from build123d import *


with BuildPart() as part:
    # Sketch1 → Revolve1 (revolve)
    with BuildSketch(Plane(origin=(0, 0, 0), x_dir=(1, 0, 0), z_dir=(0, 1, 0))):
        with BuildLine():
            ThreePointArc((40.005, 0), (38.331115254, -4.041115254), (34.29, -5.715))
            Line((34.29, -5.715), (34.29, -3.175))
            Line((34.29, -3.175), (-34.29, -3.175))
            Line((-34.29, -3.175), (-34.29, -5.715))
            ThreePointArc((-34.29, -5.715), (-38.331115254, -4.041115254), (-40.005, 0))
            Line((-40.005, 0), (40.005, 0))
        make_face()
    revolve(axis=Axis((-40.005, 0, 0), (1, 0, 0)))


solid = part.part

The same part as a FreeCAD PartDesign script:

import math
import FreeCAD as App
import Part
import Sketcher
Q = App.Units.Quantity

doc = App.newDocument("Part")
body = doc.addObject("PartDesign::Body", "Body")

# Sketch on XZ plane
sketch1 = body.newObject("Sketcher::SketchObject", "Sketch")
sketch1.AttachmentSupport = (doc.getObject("XZ_Plane"), [""])
sketch1.MapMode = "FlatFace"
sketch1.addGeometry(Part.ArcOfCircle(Part.Circle(App.Vector(34.3, 0, 0), App.Vector(0, 0, 1), 5.7), math.radians(0), math.radians(90)), False)
sketch1.addGeometry(Part.LineSegment(App.Vector(40, 0, 0), App.Vector(-40, 0, 0)), False)
sketch1.addGeometry(Part.ArcOfCircle(Part.Circle(App.Vector(-34.3, 0, 0), App.Vector(0, 0, 1), 5.7), math.radians(90), math.radians(180)), False)
sketch1.addGeometry(Part.LineSegment(App.Vector(-34.3, 5.7, 0), App.Vector(-34.3, 3.2, 0)), False)
sketch1.addGeometry(Part.LineSegment(App.Vector(-34.3, 3.2, 0), App.Vector(34.3, 3.2, 0)), False)
sketch1.addGeometry(Part.LineSegment(App.Vector(34.3, 3.2, 0), App.Vector(34.3, 5.7, 0)), False)
sketch1.addConstraint(Sketcher.Constraint("Coincident", 0, 1, 1, 1))
sketch1.addConstraint(Sketcher.Constraint("Coincident", 1, 2, 2, 2))
sketch1.addConstraint(Sketcher.Constraint("Coincident", 2, 1, 3, 1))
sketch1.addConstraint(Sketcher.Constraint("Coincident", 3, 2, 4, 1))
sketch1.addConstraint(Sketcher.Constraint("Coincident", 4, 2, 5, 1))
sketch1.addConstraint(Sketcher.Constraint("Coincident", 5, 2, 0, 2))
sketch1.addConstraint(Sketcher.Constraint("Horizontal", 1))
sketch1.addConstraint(Sketcher.Constraint("Vertical", 3))
sketch1.addConstraint(Sketcher.Constraint("Horizontal", 4))
sketch1.addConstraint(Sketcher.Constraint("Vertical", 5))
sketch1.addConstraint(Sketcher.Constraint("Equal", 0, 2))
sketch1.addConstraint(Sketcher.Constraint("Symmetric", 0, 3, 2, 3, -1, 1))
sketch1.addConstraint(Sketcher.Constraint("Symmetric", 2, 1, 5, 2, -2))
sketch1.addConstraint(Sketcher.Constraint("PointOnObject", 0, 1, -1))
sketch1.addConstraint(Sketcher.Constraint("Vertical", 0, 3, 4, 2))
sketch1.addConstraint(Sketcher.Constraint("DistanceX", 4, 1, 4, 2, Q("2.7 in")))
sketch1.addConstraint(Sketcher.Constraint("DistanceY", 3, 2, 3, 1, Q("0.1 in")))
sketch1.addConstraint(Sketcher.Constraint("Radius", 0, Q("0.225 in")))
revolution = body.newObject("PartDesign::Revolution", "Revolution")
revolution.Profile = sketch1
revolution.ReferenceAxis = (sketch1, ["H_Axis"])
revolution.Angle = 360

doc.recompute()
